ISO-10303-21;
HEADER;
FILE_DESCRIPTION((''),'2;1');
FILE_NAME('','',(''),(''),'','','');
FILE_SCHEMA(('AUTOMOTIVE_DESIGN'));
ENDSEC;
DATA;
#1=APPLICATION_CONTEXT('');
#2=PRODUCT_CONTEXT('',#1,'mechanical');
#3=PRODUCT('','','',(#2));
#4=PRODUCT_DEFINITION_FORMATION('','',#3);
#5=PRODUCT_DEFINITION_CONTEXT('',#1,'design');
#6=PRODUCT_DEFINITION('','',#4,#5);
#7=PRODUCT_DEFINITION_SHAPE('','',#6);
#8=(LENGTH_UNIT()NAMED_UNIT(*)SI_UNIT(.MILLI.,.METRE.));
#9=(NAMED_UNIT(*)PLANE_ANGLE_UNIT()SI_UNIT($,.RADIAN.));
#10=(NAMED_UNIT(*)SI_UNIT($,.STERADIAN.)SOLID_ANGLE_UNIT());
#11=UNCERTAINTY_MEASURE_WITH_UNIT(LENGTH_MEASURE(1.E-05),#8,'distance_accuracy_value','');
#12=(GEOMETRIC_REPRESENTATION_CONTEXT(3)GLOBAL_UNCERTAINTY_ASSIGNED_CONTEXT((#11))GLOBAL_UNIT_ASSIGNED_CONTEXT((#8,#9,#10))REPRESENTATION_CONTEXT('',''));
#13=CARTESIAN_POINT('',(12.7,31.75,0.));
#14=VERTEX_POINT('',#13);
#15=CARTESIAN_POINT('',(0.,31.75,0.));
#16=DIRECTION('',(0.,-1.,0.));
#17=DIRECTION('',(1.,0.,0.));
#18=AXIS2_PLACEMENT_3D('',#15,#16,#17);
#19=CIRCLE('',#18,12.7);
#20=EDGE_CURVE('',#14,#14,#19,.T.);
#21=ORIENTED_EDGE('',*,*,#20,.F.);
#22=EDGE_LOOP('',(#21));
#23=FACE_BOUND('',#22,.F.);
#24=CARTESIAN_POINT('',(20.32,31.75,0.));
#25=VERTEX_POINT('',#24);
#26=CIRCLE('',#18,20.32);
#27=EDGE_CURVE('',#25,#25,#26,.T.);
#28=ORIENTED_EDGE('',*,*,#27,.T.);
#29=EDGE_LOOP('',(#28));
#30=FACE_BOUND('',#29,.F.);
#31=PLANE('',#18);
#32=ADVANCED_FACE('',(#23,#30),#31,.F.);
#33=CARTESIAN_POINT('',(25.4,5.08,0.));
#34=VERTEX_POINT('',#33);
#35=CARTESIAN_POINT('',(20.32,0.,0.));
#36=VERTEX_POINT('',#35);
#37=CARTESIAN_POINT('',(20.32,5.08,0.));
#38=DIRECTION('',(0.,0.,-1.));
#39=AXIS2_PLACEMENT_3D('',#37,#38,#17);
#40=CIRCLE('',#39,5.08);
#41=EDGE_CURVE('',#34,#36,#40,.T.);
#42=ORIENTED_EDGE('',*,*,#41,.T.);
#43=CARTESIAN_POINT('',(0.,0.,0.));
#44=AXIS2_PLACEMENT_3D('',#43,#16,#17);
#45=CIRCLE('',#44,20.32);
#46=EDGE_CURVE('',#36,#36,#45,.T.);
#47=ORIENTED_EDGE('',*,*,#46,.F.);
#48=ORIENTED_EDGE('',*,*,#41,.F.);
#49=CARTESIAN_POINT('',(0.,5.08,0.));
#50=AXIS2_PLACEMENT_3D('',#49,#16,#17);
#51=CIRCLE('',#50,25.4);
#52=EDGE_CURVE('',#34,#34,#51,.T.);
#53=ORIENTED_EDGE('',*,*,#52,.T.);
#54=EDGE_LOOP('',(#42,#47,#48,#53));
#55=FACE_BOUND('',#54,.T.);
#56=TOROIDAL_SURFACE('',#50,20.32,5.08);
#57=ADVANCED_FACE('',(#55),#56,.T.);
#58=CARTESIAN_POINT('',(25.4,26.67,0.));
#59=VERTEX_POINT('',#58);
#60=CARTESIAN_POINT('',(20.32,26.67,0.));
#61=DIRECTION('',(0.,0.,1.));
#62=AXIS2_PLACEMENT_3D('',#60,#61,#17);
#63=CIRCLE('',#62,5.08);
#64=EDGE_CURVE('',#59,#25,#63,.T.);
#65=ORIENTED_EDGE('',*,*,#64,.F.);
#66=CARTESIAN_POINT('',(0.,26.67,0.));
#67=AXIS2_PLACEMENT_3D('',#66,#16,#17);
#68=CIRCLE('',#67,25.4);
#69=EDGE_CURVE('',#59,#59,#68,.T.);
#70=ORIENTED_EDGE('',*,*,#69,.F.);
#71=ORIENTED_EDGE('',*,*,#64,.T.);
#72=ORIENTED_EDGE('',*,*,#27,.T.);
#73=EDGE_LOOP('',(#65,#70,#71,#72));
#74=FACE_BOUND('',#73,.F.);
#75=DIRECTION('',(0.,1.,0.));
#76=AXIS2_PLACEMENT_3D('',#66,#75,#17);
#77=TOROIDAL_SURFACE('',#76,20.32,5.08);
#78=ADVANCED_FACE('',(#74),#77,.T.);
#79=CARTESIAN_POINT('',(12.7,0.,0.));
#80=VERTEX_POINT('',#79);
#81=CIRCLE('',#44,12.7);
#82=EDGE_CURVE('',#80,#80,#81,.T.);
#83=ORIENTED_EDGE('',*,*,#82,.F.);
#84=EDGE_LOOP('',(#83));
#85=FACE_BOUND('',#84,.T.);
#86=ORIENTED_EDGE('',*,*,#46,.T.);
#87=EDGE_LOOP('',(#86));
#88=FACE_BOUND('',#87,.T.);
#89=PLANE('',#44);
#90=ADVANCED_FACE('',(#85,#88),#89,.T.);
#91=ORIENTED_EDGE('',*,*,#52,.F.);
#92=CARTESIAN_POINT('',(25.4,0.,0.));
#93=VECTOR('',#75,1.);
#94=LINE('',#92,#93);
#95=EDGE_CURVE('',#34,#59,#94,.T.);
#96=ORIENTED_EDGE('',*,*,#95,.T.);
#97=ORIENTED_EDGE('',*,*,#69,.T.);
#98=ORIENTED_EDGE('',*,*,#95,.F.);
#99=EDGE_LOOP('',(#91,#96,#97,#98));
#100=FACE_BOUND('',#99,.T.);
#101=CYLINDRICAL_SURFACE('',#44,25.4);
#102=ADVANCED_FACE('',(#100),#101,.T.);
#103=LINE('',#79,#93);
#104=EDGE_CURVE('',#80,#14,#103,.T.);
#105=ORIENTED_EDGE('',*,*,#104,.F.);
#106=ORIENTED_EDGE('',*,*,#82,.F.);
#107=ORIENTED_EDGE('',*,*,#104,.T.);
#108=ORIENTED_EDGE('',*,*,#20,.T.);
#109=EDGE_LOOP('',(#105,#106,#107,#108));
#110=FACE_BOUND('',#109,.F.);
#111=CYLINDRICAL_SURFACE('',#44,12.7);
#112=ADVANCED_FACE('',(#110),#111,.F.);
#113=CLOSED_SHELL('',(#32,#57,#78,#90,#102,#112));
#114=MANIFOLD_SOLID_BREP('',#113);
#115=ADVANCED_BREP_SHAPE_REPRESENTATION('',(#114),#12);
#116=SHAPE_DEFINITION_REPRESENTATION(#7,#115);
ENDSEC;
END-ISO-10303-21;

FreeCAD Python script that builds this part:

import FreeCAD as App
import Part
import Sketcher
from FreeCAD import Vector
Q = App.Units.Quantity


def edges_at(feature, points):
    """Names of the edges that pass closest to the given points."""
    edges = feature.Shape.Edges
    near = lambda p: min(range(len(edges)), key=lambda i: edges[i].distToShape(Part.Vertex(*p))[0])
    return sorted({f"Edge{near(p) + 1}" for p in points})

doc = App.newDocument("Part")
body = doc.addObject("PartDesign::Body", "Body")

# Sketch on XZ plane
sketch1 = body.newObject("Sketcher::SketchObject", "Sketch")
sketch1.AttachmentSupport = (doc.getObject("XZ_Plane"), [""])
sketch1.MapMode = "FlatFace"
sketch1.addGeometry([
    Part.Circle(Vector(0, 0, 0), Vector(0, 0, 1), 25),
    Part.Circle(Vector(0, 0, 0), Vector(0, 0, 1), 13),
], False)
sketch1.addConstraint([
    Sketcher.Constraint("Coincident", 0, 3, -1, 1),
    Sketcher.Constraint("Coincident", 1, 3, -1, 1),
    Sketcher.Constraint("Diameter", 0, Q("2 in")),
    Sketcher.Constraint("Diameter", 1, Q("1 in")),
])
pad1 = body.newObject("PartDesign::Pad", "Pad")
pad1.Profile = sketch1
pad1.Length = Q("1.25 in")
pad1.Reversed = True
doc.recompute()

fillet = body.newObject("PartDesign::Fillet", "Fillet")
fillet.Base = (pad1, edges_at(pad1, [(-25.4, 0, 0), (-25.4, 31.75, 0)]))
fillet.Radius = Q("0.2 in")

doc.recompute()
